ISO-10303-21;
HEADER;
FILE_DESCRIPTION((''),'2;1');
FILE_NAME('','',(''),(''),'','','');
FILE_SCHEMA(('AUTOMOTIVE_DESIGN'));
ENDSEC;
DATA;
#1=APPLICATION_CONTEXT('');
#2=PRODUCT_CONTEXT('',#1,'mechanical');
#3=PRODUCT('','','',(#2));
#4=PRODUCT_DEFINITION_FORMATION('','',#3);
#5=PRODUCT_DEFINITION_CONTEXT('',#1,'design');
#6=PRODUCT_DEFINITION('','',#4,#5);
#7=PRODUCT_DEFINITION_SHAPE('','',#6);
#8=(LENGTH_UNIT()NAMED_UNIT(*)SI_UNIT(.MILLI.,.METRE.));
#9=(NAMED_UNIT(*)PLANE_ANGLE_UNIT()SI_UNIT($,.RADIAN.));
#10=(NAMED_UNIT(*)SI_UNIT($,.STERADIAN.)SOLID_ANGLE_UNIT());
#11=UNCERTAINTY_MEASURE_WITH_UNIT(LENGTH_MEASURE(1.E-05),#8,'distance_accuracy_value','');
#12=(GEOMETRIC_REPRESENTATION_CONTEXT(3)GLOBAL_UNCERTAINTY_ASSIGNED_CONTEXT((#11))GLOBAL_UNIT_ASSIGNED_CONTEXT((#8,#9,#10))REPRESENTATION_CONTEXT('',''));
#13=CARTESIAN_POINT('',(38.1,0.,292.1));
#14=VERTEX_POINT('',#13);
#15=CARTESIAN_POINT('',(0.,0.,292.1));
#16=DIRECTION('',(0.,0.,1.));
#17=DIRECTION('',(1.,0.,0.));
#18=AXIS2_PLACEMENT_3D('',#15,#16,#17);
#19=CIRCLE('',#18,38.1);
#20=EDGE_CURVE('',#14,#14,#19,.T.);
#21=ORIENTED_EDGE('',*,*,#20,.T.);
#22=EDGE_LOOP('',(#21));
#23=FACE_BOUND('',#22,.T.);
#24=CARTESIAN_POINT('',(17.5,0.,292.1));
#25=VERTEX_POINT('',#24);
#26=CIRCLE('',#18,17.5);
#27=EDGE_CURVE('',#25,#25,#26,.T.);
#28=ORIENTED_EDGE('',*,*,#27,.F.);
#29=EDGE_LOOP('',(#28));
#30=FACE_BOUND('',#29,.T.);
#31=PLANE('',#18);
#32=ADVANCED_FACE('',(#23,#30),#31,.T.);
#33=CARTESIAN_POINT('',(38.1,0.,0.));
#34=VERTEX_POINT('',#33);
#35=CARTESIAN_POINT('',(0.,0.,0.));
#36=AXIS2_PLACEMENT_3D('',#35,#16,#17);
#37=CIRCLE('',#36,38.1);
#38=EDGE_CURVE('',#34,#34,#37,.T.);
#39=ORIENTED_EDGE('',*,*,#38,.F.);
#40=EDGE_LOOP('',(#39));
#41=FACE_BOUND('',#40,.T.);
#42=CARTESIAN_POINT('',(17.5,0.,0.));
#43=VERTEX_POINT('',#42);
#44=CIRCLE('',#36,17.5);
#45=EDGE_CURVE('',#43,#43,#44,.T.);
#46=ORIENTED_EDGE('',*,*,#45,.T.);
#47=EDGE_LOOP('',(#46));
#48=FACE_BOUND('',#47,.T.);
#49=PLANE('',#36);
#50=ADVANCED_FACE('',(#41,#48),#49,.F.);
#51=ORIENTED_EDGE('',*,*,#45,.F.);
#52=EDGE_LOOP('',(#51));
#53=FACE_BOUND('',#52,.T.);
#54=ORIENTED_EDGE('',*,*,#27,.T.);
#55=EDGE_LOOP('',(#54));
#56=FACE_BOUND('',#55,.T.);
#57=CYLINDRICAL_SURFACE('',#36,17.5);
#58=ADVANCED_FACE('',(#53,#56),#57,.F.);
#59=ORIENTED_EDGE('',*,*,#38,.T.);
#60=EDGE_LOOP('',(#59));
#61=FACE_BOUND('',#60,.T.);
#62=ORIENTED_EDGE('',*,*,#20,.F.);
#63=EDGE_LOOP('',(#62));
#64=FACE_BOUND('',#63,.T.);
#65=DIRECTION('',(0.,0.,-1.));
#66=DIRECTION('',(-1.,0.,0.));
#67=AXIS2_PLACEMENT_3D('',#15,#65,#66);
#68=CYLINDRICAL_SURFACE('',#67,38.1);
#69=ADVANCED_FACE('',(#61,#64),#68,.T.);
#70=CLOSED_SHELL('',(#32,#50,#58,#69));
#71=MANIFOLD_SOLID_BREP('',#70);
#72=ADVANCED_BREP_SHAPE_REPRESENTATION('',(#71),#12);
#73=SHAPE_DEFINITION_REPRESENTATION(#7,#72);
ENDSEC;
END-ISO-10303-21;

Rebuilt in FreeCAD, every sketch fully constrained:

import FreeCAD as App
import Part
import Sketcher

doc = App.newDocument("Part")
body = doc.addObject("PartDesign::Body", "Body")

sketch1 = doc.addObject("Sketcher::SketchObject", "Sketch")
body.addObject(sketch1)
sketch1.AttachmentSupport = (doc.XY_Plane, [""])
sketch1.MapMode = "FlatFace"
sketch1.addGeometry(Part.Circle(App.Vector(0, 0, 0), App.Vector(0, 0, 1), 38), False)
sketch1.addConstraint([
    Sketcher.Constraint("Coincident", 0, 3, -1, 1),
    Sketcher.Constraint("Diameter", 0, 76.2),
])
pad1 = doc.addObject("PartDesign::Pad", "Pad")
body.addObject(pad1)
pad1.Profile = sketch1
pad1.Length = 292.1

sketch2 = doc.addObject("Sketcher::SketchObject", "Sketch001")
body.addObject(sketch2)
sketch2.AttachmentSupport = (doc.XY_Plane, [""])
sketch2.MapMode = "FlatFace"
sketch2.AttachmentOffset = App.Placement(App.Vector(0, 0, 292.1), App.Rotation())
sketch2.addGeometry(Part.Circle(App.Vector(0, 0, 0), App.Vector(0, 0, 1), 18), False)
sketch2.addConstraint([
    Sketcher.Constraint("Coincident", 0, 3, -1, 1),
    Sketcher.Constraint("Diameter", 0, 35.0),
])
pocket1 = doc.addObject("PartDesign::Pocket", "Pocket")
body.addObject(pocket1)
pocket1.Profile = sketch2
pocket1.Type = "ThroughAll"
pocket1.Midplane = True

doc.recompute()
